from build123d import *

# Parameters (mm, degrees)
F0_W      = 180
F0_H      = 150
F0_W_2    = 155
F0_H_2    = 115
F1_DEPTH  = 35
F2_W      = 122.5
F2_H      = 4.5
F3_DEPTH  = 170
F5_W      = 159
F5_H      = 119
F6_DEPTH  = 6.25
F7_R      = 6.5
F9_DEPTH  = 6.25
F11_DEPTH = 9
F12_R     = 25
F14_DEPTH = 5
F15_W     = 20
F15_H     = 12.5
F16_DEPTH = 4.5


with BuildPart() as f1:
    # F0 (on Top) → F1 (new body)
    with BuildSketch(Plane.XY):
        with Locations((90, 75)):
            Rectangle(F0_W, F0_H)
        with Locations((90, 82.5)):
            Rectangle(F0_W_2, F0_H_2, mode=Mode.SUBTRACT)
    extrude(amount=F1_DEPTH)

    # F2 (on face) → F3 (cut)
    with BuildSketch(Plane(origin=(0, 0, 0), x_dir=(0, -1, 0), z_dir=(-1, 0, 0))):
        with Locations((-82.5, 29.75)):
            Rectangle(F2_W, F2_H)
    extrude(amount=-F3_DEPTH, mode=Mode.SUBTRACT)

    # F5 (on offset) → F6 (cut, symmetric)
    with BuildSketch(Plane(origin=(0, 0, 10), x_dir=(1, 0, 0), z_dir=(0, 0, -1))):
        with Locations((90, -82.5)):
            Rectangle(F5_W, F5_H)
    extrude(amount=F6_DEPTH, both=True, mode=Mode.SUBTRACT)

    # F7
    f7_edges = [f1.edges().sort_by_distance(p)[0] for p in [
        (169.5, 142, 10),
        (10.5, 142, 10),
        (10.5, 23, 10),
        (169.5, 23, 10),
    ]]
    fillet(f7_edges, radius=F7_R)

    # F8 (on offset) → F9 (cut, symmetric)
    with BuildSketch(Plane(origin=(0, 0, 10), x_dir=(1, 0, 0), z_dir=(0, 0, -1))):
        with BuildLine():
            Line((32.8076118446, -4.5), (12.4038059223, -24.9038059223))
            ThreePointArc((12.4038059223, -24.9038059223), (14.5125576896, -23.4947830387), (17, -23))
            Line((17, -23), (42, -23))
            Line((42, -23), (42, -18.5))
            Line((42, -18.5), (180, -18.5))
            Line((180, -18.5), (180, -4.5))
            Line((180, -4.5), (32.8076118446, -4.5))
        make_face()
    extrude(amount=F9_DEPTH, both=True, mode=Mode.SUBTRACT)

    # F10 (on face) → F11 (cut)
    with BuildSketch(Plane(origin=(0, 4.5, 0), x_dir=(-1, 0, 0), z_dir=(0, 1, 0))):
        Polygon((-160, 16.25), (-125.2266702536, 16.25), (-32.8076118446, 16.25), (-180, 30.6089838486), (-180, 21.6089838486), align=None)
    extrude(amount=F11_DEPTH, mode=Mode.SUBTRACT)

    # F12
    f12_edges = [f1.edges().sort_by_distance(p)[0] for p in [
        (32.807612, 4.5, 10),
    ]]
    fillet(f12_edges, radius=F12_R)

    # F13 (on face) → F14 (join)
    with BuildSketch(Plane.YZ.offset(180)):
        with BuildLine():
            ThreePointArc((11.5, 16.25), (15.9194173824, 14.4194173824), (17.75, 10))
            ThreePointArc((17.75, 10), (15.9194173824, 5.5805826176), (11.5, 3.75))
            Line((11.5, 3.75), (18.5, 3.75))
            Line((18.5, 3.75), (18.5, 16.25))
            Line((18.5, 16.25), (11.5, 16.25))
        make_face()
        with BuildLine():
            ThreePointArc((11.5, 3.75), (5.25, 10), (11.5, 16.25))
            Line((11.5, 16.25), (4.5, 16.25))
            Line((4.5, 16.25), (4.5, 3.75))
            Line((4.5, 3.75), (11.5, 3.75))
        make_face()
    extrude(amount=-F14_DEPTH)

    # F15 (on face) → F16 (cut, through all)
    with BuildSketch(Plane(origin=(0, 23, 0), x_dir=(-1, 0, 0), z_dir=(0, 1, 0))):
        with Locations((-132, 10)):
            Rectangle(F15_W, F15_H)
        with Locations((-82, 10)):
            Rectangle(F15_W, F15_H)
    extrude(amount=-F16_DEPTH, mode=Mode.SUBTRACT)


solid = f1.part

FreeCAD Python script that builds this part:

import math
import FreeCAD as App
import Part
import Sketcher
Q = App.Units.Quantity


def edges_at(feature, points):
    """Names of the edges that pass closest to the given points."""
    edges = feature.Shape.Edges
    near = lambda p: min(range(len(edges)), key=lambda i: edges[i].distToShape(Part.Vertex(*p))[0])
    return sorted({f"Edge{near(p) + 1}" for p in points})

doc = App.newDocument("Part")
body = doc.addObject("PartDesign::Body", "Body")

sketch1 = body.newObject("Sketcher::SketchObject", "Sketch")
sketch1.AttachmentSupport = (doc.getObject("XY_Plane"), [""])
sketch1.MapMode = "FlatFace"
sketch1.addGeometry(Part.LineSegment(App.Vector(0, 150, 0), App.Vector(0, 0, 0)), False)
sketch1.addGeometry(Part.LineSegment(App.Vector(0, 0, 0), App.Vector(180, 0, 0)), False)
sketch1.addGeometry(Part.LineSegment(App.Vector(180, 0, 0), App.Vector(180, 150, 0)), False)
sketch1.addGeometry(Part.LineSegment(App.Vector(180, 150, 0), App.Vector(0, 150, 0)), False)
sketch1.addGeometry(Part.LineSegment(App.Vector(167.5, 25, 0), App.Vector(12.5, 25, 0)), False)
sketch1.addGeometry(Part.LineSegment(App.Vector(12.5, 25, 0), App.Vector(12.5, 140, 0)), False)
sketch1.addGeometry(Part.LineSegment(App.Vector(12.5, 140, 0), App.Vector(167.5, 140, 0)), False)
sketch1.addGeometry(Part.LineSegment(App.Vector(167.5, 140, 0), App.Vector(167.5, 25, 0)), False)
sketch1.addConstraint(Sketcher.Constraint("Coincident", 0, 2, 1, 1))
sketch1.addConstraint(Sketcher.Constraint("Coincident", 1, 2, 2, 1))
sketch1.addConstraint(Sketcher.Constraint("Coincident", 2, 2, 3, 1))
sketch1.addConstraint(Sketcher.Constraint("Coincident", 3, 2, 0, 1))
sketch1.addConstraint(Sketcher.Constraint("Coincident", 4, 2, 5, 1))
sketch1.addConstraint(Sketcher.Constraint("Coincident", 5, 2, 6, 1))
sketch1.addConstraint(Sketcher.Constraint("Coincident", 6, 2, 7, 1))
sketch1.addConstraint(Sketcher.Constraint("Coincident", 7, 2, 4, 1))
sketch1.addConstraint(Sketcher.Constraint("Vertical", 0))
sketch1.addConstraint(Sketcher.Constraint("Horizontal", 1))
sketch1.addConstraint(Sketcher.Constraint("Vertical", 2))
sketch1.addConstraint(Sketcher.Constraint("Horizontal", 3))
sketch1.addConstraint(Sketcher.Constraint("Horizontal", 4))
sketch1.addConstraint(Sketcher.Constraint("Vertical", 5))
sketch1.addConstraint(Sketcher.Constraint("Horizontal", 6))
sketch1.addConstraint(Sketcher.Constraint("Vertical", 7))
sketch1.addConstraint(Sketcher.Constraint("Coincident", 0, 2, -1, 1))
sketch1.addConstraint(Sketcher.Constraint("DistanceX", 1, 1, 1, 2, Q("180 mm")))
sketch1.addConstraint(Sketcher.Constraint("DistanceX", 4, 2, 4, 1, Q("155 mm")))
sketch1.addConstraint(Sketcher.Constraint("DistanceY", 0, 2, 0, 1, Q("150 mm")))
sketch1.addConstraint(Sketcher.Constraint("DistanceY", 5, 1, 5, 2, Q("115 mm")))
sketch1.addConstraint(Sketcher.Constraint("DistanceY", -1, 1, 4, 2, Q("25 mm")))
sketch1.addConstraint(Sketcher.Constraint("DistanceX", -1, 1, 4, 2, Q("12.5 mm")))
pad1 = body.newObject("PartDesign::Pad", "Pad")
pad1.Profile = sketch1
pad1.Length = 35

sketch2 = body.newObject("Sketcher::SketchObject", "Sketch001")
sketch2.AttachmentSupport = (doc.getObject("YZ_Plane"), [""])
sketch2.MapMode = "FlatFace"
sketch2.addGeometry(Part.LineSegment(App.Vector(143.75, 32, 0), App.Vector(143.75, 27.5, 0)), False)
sketch2.addGeometry(Part.LineSegment(App.Vector(143.75, 27.5, 0), App.Vector(21.25, 27.5, 0)), False)
sketch2.addGeometry(Part.LineSegment(App.Vector(21.25, 27.5, 0), App.Vector(21.25, 32, 0)), False)
sketch2.addGeometry(Part.LineSegment(App.Vector(21.25, 32, 0), App.Vector(143.75, 32, 0)), False)
sketch2.addConstraint(Sketcher.Constraint("Coincident", 0, 2, 1, 1))
sketch2.addConstraint(Sketcher.Constraint("Coincident", 1, 2, 2, 1))
sketch2.addConstraint(Sketcher.Constraint("Coincident", 2, 2, 3, 1))
sketch2.addConstraint(Sketcher.Constraint("Coincident", 3, 2, 0, 1))
sketch2.addConstraint(Sketcher.Constraint("Vertical", 0))
sketch2.addConstraint(Sketcher.Constraint("Horizontal", 1))
sketch2.addConstraint(Sketcher.Constraint("Vertical", 2))
sketch2.addConstraint(Sketcher.Constraint("Horizontal", 3))
sketch2.addConstraint(Sketcher.Constraint("DistanceX", 1, 2, 1, 1, Q("122.5 mm")))
sketch2.addConstraint(Sketcher.Constraint("DistanceY", 0, 2, 0, 1, Q("4.5 mm")))
sketch2.addConstraint(Sketcher.Constraint("DistanceY", -1, 1, 2, 2, Q("32 mm")))
sketch2.addConstraint(Sketcher.Constraint("DistanceX", -1, 1, 0, 2, Q("143.75 mm")))
pocket1 = body.newObject("PartDesign::Pocket", "Pocket")
pocket1.Profile = sketch2
pocket1.Length = 170
pocket1.Reversed = True

sketch3 = body.newObject("Sketcher::SketchObject", "Sketch002")
sketch3.AttachmentSupport = (doc.getObject("XY_Plane"), [""])
sketch3.MapMode = "FlatFace"
sketch3.AttachmentOffset = App.Placement(App.Vector(0, 0, 10), App.Rotation())
sketch3.addGeometry(Part.LineSegment(App.Vector(10.5, 23, 0), App.Vector(10.5, 142, 0)), False)
sketch3.addGeometry(Part.LineSegment(App.Vector(10.5, 142, 0), App.Vector(169.5, 142, 0)), False)
sketch3.addGeometry(Part.LineSegment(App.Vector(169.5, 142, 0), App.Vector(169.5, 23, 0)), False)
sketch3.addGeometry(Part.LineSegment(App.Vector(169.5, 23, 0), App.Vector(10.5, 23, 0)), False)
sketch3.addConstraint(Sketcher.Constraint("Coincident", 0, 2, 1, 1))
sketch3.addConstraint(Sketcher.Constraint("Coincident", 1, 2, 2, 1))
sketch3.addConstraint(Sketcher.Constraint("Coincident", 2, 2, 3, 1))
sketch3.addConstraint(Sketcher.Constraint("Coincident", 3, 2, 0, 1))
sketch3.addConstraint(Sketcher.Constraint("Vertical", 0))
sketch3.addConstraint(Sketcher.Constraint("Horizontal", 1))
sketch3.addConstraint(Sketcher.Constraint("Vertical", 2))
sketch3.addConstraint(Sketcher.Constraint("Horizontal", 3))
sketch3.addConstraint(Sketcher.Constraint("DistanceX", 1, 1, 1, 2, Q("159 mm")))
sketch3.addConstraint(Sketcher.Constraint("DistanceY", 0, 1, 0, 2, Q("119 mm")))
sketch3.addConstraint(Sketcher.Constraint("DistanceY", -1, 1, 0, 2, Q("142 mm")))
sketch3.addConstraint(Sketcher.Constraint("DistanceX", -1, 1, 0, 2, Q("10.5 mm")))
pocket2 = body.newObject("PartDesign::Pocket", "Pocket001")
pocket2.Profile = sketch3
pocket2.Length = 12.5
pocket2.Midplane = True
doc.recompute()

fillet = body.newObject("PartDesign::Fillet", "Fillet")
fillet.Base = (pocket2, edges_at(pocket2, [
    (169.5, 142, 10),
    (10.5, 142, 10),
    (10.5, 23, 10),
    (169.5, 23, 10),
]))
fillet.Radius = 6.5

sketch4 = body.newObject("Sketcher::SketchObject", "Sketch003")
sketch4.AttachmentSupport = (doc.getObject("XY_Plane"), [""])
sketch4.MapMode = "FlatFace"
sketch4.AttachmentOffset = App.Placement(App.Vector(0, 0, 10), App.Rotation())
sketch4.addGeometry(Part.LineSegment(App.Vector(32.807612, 4.5, 0), App.Vector(12.403806, 24.903806, 0)), False)
sketch4.addGeometry(Part.ArcOfCircle(Part.Circle(App.Vector(17, 29.5, 0), App.Vector(0, 0, 1), 6.5), math.radians(-135), math.radians(-90)), False)
sketch4.addGeometry(Part.LineSegment(App.Vector(17, 23, 0), App.Vector(42, 23, 0)), False)
sketch4.addGeometry(Part.LineSegment(App.Vector(42, 23, 0), App.Vector(42, 18.5, 0)), False)
sketch4.addGeometry(Part.LineSegment(App.Vector(42, 18.5, 0), App.Vector(180, 18.5, 0)), False)
sketch4.addGeometry(Part.LineSegment(App.Vector(180, 18.5, 0), App.Vector(180, 4.5, 0)), False)
sketch4.addGeometry(Part.LineSegment(App.Vector(180, 4.5, 0), App.Vector(32.807612, 4.5, 0)), False)
sketch4.addConstraint(Sketcher.Constraint("Tangent", 0, 2, 1, 1))
sketch4.addConstraint(Sketcher.Constraint("Tangent", 1, 2, 2, 1))
sketch4.addConstraint(Sketcher.Constraint("Coincident", 2, 2, 3, 1))
sketch4.addConstraint(Sketcher.Constraint("Coincident", 3, 2, 4, 1))
sketch4.addConstraint(Sketcher.Constraint("Coincident", 4, 2, 5, 1))
sketch4.addConstraint(Sketcher.Constraint("Coincident", 5, 2, 6, 1))
sketch4.addConstraint(Sketcher.Constraint("Coincident", 6, 2, 0, 1))
sketch4.addConstraint(Sketcher.Constraint("Horizontal", 2))
sketch4.addConstraint(Sketcher.Constraint("Vertical", 3))
sketch4.addConstraint(Sketcher.Constraint("Horizontal", 4))
sketch4.addConstraint(Sketcher.Constraint("Vertical", 5))
sketch4.addConstraint(Sketcher.Constraint("Horizontal", 6))
sketch4.addConstraint(Sketcher.Constraint("Radius", 1, Q("6.5 mm")))
sketch4.addConstraint(Sketcher.Constraint("DistanceX", 2, 1, 2, 2, Q("25 mm")))
sketch4.addConstraint(Sketcher.Constraint("DistanceX", 4, 1, 4, 2, Q("138 mm")))
sketch4.addConstraint(Sketcher.Constraint("DistanceY", 5, 2, 5, 1, Q("14 mm")))
sketch4.addConstraint(Sketcher.Constraint("Angle", 0, Q("135 deg")))
sketch4.addConstraint(Sketcher.Constraint("DistanceY", 3, 2, 3, 1, Q("4.5 mm")))
sketch4.addConstraint(Sketcher.Constraint("DistanceX", -1, 1, 1, 3, Q("17 mm")))
sketch4.addConstraint(Sketcher.Constraint("DistanceY", -1, 1, 1, 2, Q("23 mm")))
pocket3 = body.newObject("PartDesign::Pocket", "Pocket002")
pocket3.Profile = sketch4
pocket3.Length = 12.5
pocket3.Midplane = True

sketch5 = body.newObject("Sketcher::SketchObject", "Sketch004")
sketch5.AttachmentSupport = (doc.getObject("XZ_Plane"), [""])
sketch5.MapMode = "FlatFace"
sketch5.AttachmentOffset = App.Placement(App.Vector(0, 0, -4.5), App.Rotation())
sketch5.addGeometry(Part.LineSegment(App.Vector(160, 16.25, 0), App.Vector(32.807612, 16.25, 0)), False)
sketch5.addGeometry(Part.LineSegment(App.Vector(32.807612, 16.25, 0), App.Vector(180, 30.608984, 0)), False)
sketch5.addGeometry(Part.LineSegment(App.Vector(180, 30.608984, 0), App.Vector(180, 21.608984, 0)), False)
sketch5.addGeometry(Part.LineSegment(App.Vector(180, 21.608984, 0), App.Vector(160, 16.25, 0)), False)
sketch5.addConstraint(Sketcher.Constraint("Coincident", 0, 2, 1, 1))
sketch5.addConstraint(Sketcher.Constraint("Coincident", 1, 2, 2, 1))
sketch5.addConstraint(Sketcher.Constraint("Coincident", 2, 2, 3, 1))
sketch5.addConstraint(Sketcher.Constraint("Coincident", 3, 2, 0, 1))
sketch5.addConstraint(Sketcher.Constraint("Horizontal", 0))
sketch5.addConstraint(Sketcher.Constraint("Vertical", 2))
sketch5.addConstraint(Sketcher.Constraint("DistanceY", 2, 2, 2, 1, Q("9 mm")))
sketch5.addConstraint(Sketcher.Constraint("Angle", 3, Q("-165 deg")))
sketch5.addConstraint(Sketcher.Constraint("DistanceX", -1, 1, 1, 2, Q("180 mm")))
sketch5.addConstraint(Sketcher.Constraint("DistanceX", -1, 1, 3, 2, Q("160 mm")))
sketch5.addConstraint(Sketcher.Constraint("DistanceY", -1, 1, 0, 2, Q("16.25 mm")))
sketch5.addConstraint(Sketcher.Constraint("DistanceX", 0, 2, 0, 1, Q("127.192388 mm")))
pocket4 = body.newObject("PartDesign::Pocket", "Pocket003")
pocket4.Profile = sketch5
pocket4.Length = 9
doc.recompute()

fillet2 = body.newObject("PartDesign::Fillet", "Fillet001")
fillet2.Base = (pocket4, edges_at(pocket4, [(32.808, 4.5, 10)]))
fillet2.Radius = 25

sketch6 = body.newObject("Sketcher::SketchObject", "Sketch005")
sketch6.AttachmentSupport = (doc.getObject("YZ_Plane"), [""])
sketch6.MapMode = "FlatFace"
sketch6.AttachmentOffset = App.Placement(App.Vector(0, 0, 180), App.Rotation())
sketch6.addGeometry(Part.ArcOfCircle(Part.Circle(App.Vector(11.5, 10, 0), App.Vector(0, 0, 1), 6.25), math.radians(0), math.radians(90)), False)
sketch6.addGeometry(Part.ArcOfCircle(Part.Circle(App.Vector(11.5, 10, 0), App.Vector(0, 0, 1), 6.25), math.radians(-90), math.radians(0)), False)
sketch6.addGeometry(Part.LineSegment(App.Vector(11.5, 3.75, 0), App.Vector(18.5, 3.75, 0)), False)
sketch6.addGeometry(Part.LineSegment(App.Vector(18.5, 3.75, 0), App.Vector(18.5, 16.25, 0)), False)
sketch6.addGeometry(Part.LineSegment(App.Vector(18.5, 16.25, 0), App.Vector(11.5, 16.25, 0)), False)
sketch6.addGeometry(Part.ArcOfCircle(Part.Circle(App.Vector(11.5, 10, 0), App.Vector(0, 0, 1), 6.25), math.radians(90), math.radians(270)), False)
sketch6.addGeometry(Part.LineSegment(App.Vector(11.5, 16.25, 0), App.Vector(4.5, 16.25, 0)), False)
sketch6.addGeometry(Part.LineSegment(App.Vector(4.5, 16.25, 0), App.Vector(4.5, 3.75, 0)), False)
sketch6.addGeometry(Part.LineSegment(App.Vector(4.5, 3.75, 0), App.Vector(11.5, 3.75, 0)), False)
sketch6.addConstraint(Sketcher.Constraint("Tangent", 0, 1, 1, 2))
sketch6.addConstraint(Sketcher.Constraint("Tangent", 1, 1, 2, 1))
sketch6.addConstraint(Sketcher.Constraint("Coincident", 2, 2, 3, 1))
sketch6.addConstraint(Sketcher.Constraint("Coincident", 3, 2, 4, 1))
sketch6.addConstraint(Sketcher.Constraint("Tangent", 4, 2, 0, 2))
sketch6.addConstraint(Sketcher.Constraint("Tangent", 5, 1, 6, 1))
sketch6.addConstraint(Sketcher.Constraint("Coincident", 6, 2, 7, 1))
sketch6.addConstraint(Sketcher.Constraint("Coincident", 7, 2, 8, 1))
sketch6.addConstraint(Sketcher.Constraint("Tangent", 8, 2, 5, 2))
sketch6.addConstraint(Sketcher.Constraint("Horizontal", 2))
sketch6.addConstraint(Sketcher.Constraint("Vertical", 3))
sketch6.addConstraint(Sketcher.Constraint("Horizontal", 4))
sketch6.addConstraint(Sketcher.Constraint("Horizontal", 6))
sketch6.addConstraint(Sketcher.Constraint("Vertical", 7))
sketch6.addConstraint(Sketcher.Constraint("Horizontal", 8))
sketch6.addConstraint(Sketcher.Constraint("Coincident", 5, 3, 0, 3))
sketch6.addConstraint(Sketcher.Constraint("Coincident", 8, 2, 1, 1))
sketch6.addConstraint(Sketcher.Constraint("Horizontal", 5, 3, 0, 1))
sketch6.addConstraint(Sketcher.Constraint("Equal", 4, 6))
sketch6.addConstraint(Sketcher.Constraint("DistanceX", 2, 1, 2, 2, Q("7 mm")))
sketch6.addConstraint(Sketcher.Constraint("Radius", 0, Q("6.25 mm")))
sketch6.addConstraint(Sketcher.Constraint("DistanceY", -1, 1, 0, 3, Q("10 mm")))
sketch6.addConstraint(Sketcher.Constraint("DistanceX", -1, 1, 0, 3, Q("11.5 mm")))
pad2 = body.newObject("PartDesign::Pad", "Pad001")
pad2.Profile = sketch6
pad2.Length = 5
pad2.Reversed = True

sketch7 = body.newObject("Sketcher::SketchObject", "Sketch006")
sketch7.AttachmentSupport = (doc.getObject("XZ_Plane"), [""])
sketch7.MapMode = "FlatFace"
sketch7.AttachmentOffset = App.Placement(App.Vector(0, 0, -23), App.Rotation())
sketch7.addGeometry(Part.LineSegment(App.Vector(142, 16.25, 0), App.Vector(142, 3.75, 0)), False)
sketch7.addGeometry(Part.LineSegment(App.Vector(142, 3.75, 0), App.Vector(122, 3.75, 0)), False)
sketch7.addGeometry(Part.LineSegment(App.Vector(122, 3.75, 0), App.Vector(122, 16.25, 0)), False)
sketch7.addGeometry(Part.LineSegment(App.Vector(122, 16.25, 0), App.Vector(142, 16.25, 0)), False)
sketch7.addGeometry(Part.LineSegment(App.Vector(92, 16.25, 0), App.Vector(92, 3.75, 0)), False)
sketch7.addGeometry(Part.LineSegment(App.Vector(92, 3.75, 0), App.Vector(72, 3.75, 0)), False)
sketch7.addGeometry(Part.LineSegment(App.Vector(72, 3.75, 0), App.Vector(72, 16.25, 0)), False)
sketch7.addGeometry(Part.LineSegment(App.Vector(72, 16.25, 0), App.Vector(92, 16.25, 0)), False)
sketch7.addConstraint(Sketcher.Constraint("Coincident", 0, 2, 1, 1))
sketch7.addConstraint(Sketcher.Constraint("Coincident", 1, 2, 2, 1))
sketch7.addConstraint(Sketcher.Constraint("Coincident", 2, 2, 3, 1))
sketch7.addConstraint(Sketcher.Constraint("Coincident", 3, 2, 0, 1))
sketch7.addConstraint(Sketcher.Constraint("Coincident", 4, 2, 5, 1))
sketch7.addConstraint(Sketcher.Constraint("Coincident", 5, 2, 6, 1))
sketch7.addConstraint(Sketcher.Constraint("Coincident", 6, 2, 7, 1))
sketch7.addConstraint(Sketcher.Constraint("Coincident", 7, 2, 4, 1))
sketch7.addConstraint(Sketcher.Constraint("Vertical", 0))
sketch7.addConstraint(Sketcher.Constraint("Horizontal", 1))
sketch7.addConstraint(Sketcher.Constraint("Vertical", 2))
sketch7.addConstraint(Sketcher.Constraint("Horizontal", 3))
sketch7.addConstraint(Sketcher.Constraint("Vertical", 4))
sketch7.addConstraint(Sketcher.Constraint("Horizontal", 5))
sketch7.addConstraint(Sketcher.Constraint("Vertical", 6))
sketch7.addConstraint(Sketcher.Constraint("Horizontal", 7))
sketch7.addConstraint(Sketcher.Constraint("Horizontal", 1, 2, 4, 2))
sketch7.addConstraint(Sketcher.Constraint("Horizontal", 3, 2, 6, 2))
sketch7.addConstraint(Sketcher.Constraint("Equal", 3, 5))
sketch7.addConstraint(Sketcher.Constraint("DistanceX", 1, 2, 1, 1, Q("20 mm")))
sketch7.addConstraint(Sketcher.Constraint("DistanceY", 0, 2, 0, 1, Q("12.5 mm")))
sketch7.addConstraint(Sketcher.Constraint("DistanceX", -1, 1, 0, 2, Q("142 mm")))
sketch7.addConstraint(Sketcher.Constraint("DistanceX", -1, 1, 4, 2, Q("92 mm")))
sketch7.addConstraint(Sketcher.Constraint("DistanceY", -1, 1, 0, 2, Q("3.75 mm")))
pocket5 = body.newObject("PartDesign::Pocket", "Pocket004")
pocket5.Profile = sketch7
pocket5.Length = 4.5
pocket5.Reversed = True

doc.recompute()
